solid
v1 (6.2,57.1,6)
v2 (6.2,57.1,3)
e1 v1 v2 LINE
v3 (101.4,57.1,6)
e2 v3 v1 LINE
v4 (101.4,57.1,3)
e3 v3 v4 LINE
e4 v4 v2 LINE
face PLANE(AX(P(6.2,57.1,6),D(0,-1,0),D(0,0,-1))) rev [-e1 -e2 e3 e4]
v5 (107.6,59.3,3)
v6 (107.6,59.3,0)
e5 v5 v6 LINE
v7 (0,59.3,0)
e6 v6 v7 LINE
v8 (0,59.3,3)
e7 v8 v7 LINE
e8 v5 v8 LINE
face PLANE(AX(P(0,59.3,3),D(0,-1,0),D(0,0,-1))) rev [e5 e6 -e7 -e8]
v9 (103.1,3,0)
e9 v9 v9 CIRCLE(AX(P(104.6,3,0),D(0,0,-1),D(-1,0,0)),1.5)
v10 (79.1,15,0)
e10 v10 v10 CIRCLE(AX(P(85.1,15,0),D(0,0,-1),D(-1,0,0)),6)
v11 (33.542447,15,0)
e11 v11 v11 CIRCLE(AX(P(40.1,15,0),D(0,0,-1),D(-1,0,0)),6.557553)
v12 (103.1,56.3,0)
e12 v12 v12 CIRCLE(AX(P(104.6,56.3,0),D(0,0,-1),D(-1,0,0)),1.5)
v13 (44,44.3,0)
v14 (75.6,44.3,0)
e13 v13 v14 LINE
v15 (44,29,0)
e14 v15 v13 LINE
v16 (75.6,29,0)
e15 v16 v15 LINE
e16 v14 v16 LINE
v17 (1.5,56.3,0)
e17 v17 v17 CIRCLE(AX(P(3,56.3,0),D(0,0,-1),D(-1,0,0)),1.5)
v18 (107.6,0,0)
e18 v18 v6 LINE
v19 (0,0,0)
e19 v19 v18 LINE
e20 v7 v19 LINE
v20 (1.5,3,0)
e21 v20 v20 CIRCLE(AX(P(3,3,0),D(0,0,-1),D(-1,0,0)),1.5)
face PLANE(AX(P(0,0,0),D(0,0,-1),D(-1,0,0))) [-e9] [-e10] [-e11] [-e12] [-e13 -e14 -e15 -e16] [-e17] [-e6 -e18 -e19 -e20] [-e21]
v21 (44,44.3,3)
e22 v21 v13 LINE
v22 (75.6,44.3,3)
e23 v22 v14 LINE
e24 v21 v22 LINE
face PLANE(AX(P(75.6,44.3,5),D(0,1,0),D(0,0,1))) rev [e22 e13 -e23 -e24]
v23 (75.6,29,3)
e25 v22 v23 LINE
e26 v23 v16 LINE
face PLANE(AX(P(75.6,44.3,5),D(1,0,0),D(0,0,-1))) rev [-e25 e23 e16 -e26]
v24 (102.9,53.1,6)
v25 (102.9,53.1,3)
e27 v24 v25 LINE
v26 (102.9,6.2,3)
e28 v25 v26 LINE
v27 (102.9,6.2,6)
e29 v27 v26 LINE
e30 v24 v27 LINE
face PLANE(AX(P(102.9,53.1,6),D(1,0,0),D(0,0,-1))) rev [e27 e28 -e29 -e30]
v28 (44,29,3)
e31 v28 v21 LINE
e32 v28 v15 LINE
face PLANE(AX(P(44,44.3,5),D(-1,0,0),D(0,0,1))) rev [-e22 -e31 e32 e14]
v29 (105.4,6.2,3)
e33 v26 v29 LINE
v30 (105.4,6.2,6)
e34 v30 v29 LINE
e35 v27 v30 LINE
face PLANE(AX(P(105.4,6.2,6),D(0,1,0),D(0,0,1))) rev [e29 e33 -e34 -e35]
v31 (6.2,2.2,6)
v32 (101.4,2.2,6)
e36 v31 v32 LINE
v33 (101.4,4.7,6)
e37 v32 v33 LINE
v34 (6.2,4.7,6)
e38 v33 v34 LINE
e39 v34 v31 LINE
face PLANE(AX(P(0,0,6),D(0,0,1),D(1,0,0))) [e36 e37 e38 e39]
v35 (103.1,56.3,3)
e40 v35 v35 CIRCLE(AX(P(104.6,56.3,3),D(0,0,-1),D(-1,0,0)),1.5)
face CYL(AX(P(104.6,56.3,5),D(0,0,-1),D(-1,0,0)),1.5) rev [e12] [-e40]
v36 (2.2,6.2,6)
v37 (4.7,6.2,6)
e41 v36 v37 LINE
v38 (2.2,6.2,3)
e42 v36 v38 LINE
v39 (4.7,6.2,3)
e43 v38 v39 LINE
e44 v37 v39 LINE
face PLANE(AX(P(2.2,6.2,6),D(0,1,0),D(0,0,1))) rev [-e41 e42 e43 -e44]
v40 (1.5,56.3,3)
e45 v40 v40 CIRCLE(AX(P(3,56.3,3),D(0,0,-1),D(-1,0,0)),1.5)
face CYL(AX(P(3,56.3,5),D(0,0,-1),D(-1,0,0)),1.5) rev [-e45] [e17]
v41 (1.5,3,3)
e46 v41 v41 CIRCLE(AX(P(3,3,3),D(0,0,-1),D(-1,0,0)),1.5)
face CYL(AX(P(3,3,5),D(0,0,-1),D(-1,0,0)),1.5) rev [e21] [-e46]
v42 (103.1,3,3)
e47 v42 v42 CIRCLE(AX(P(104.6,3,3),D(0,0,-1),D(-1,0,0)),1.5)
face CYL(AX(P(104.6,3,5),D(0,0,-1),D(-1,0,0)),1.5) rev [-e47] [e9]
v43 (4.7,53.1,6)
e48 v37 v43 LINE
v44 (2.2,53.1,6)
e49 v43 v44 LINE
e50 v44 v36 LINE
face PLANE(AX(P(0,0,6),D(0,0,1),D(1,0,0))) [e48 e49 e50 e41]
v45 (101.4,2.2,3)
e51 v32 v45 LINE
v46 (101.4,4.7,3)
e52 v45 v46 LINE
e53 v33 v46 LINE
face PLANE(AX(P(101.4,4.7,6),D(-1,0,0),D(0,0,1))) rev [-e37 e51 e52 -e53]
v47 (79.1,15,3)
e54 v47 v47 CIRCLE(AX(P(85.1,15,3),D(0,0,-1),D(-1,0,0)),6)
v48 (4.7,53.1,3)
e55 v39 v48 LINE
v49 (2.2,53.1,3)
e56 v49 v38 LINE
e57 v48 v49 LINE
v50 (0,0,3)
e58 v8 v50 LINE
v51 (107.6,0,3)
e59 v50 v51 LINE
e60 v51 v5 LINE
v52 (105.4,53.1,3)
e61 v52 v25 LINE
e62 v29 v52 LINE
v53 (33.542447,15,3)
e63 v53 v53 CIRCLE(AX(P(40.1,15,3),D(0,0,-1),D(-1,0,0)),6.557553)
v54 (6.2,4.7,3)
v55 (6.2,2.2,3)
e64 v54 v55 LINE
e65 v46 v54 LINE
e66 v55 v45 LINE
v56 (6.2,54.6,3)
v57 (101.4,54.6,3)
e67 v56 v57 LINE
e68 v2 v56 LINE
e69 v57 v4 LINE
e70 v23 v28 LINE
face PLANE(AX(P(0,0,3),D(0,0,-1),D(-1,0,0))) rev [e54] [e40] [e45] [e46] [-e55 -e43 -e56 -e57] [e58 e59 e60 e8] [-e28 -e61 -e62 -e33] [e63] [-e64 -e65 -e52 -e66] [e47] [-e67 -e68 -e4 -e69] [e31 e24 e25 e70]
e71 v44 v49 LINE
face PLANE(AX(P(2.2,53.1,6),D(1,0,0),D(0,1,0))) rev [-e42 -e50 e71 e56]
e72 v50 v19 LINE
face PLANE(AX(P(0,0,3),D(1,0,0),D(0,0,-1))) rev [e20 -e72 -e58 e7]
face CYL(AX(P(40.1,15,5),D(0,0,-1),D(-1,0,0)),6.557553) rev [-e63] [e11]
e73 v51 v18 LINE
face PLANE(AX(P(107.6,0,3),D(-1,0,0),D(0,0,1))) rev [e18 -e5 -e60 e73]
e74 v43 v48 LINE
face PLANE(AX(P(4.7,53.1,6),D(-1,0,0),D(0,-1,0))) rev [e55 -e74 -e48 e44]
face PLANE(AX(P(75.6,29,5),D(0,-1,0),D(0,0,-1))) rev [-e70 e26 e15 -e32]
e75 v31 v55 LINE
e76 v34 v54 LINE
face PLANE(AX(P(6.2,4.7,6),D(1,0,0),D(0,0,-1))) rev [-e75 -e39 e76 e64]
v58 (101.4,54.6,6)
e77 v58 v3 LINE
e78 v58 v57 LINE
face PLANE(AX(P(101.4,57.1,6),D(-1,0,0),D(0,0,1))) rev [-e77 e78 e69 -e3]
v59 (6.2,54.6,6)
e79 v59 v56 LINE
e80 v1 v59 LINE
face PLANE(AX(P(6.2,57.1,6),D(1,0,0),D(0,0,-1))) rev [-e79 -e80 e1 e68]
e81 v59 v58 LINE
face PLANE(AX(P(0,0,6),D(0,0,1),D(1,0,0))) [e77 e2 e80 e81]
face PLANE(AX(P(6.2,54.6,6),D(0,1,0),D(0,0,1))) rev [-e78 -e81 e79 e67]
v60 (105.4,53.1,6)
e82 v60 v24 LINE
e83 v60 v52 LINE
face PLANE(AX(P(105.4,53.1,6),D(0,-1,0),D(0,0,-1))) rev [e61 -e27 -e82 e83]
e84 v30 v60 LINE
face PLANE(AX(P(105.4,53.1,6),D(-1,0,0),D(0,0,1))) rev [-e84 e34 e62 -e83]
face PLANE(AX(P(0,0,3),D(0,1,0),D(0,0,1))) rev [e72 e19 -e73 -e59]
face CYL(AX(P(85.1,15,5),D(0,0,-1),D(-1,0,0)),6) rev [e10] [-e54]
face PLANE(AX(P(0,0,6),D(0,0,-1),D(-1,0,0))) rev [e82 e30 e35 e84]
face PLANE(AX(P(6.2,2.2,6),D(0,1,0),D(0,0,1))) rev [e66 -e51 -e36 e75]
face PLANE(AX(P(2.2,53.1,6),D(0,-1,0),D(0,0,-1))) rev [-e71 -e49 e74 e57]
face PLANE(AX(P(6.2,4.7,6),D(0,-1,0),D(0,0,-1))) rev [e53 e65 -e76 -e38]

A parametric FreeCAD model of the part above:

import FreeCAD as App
import Part
import Sketcher

V = App.Vector
Q = App.Units.Quantity


def add_polygon(sketch, points):
    """Adds a closed chain of lines whose ends are joined by coincident constraints."""
    first, n = sketch.GeometryCount, len(points)
    for a, b in zip(points, points[1:] + points[:1]):
        sketch.addGeometry(Part.LineSegment(App.Vector(*a, 0), App.Vector(*b, 0)), False)
    for i in range(n):
        sketch.addConstraint(Sketcher.Constraint("Coincident", first + i, 2, first + (i + 1) % n, 1))

doc = App.newDocument("Part")
body = doc.addObject("PartDesign::Body", "Body")

sketch1 = doc.addObject("Sketcher::SketchObject", "Sketch")
body.addObject(sketch1)
sketch1.AttachmentSupport = (doc.XY_Plane, [""])
sketch1.MapMode = "FlatFace"
add_polygon(sketch1, [(0, 59.3), (0, 0), (107.6, 0), (107.6, 59.3)])
sketch1.addConstraint(Sketcher.Constraint("Vertical", 0))
sketch1.addConstraint(Sketcher.Constraint("Horizontal", 1))
sketch1.addConstraint(Sketcher.Constraint("Vertical", 2))
sketch1.addConstraint(Sketcher.Constraint("Horizontal", 3))
sketch1.addConstraint(Sketcher.Constraint("Coincident", 0, 2, -1, 1))
sketch1.addConstraint(Sketcher.Constraint("DistanceX", 1, 1, 1, 2, Q("107.6 mm")))
sketch1.addConstraint(Sketcher.Constraint("DistanceY", 0, 2, 0, 1, Q("59.3 mm")))
pad1 = doc.addObject("PartDesign::Pad", "Pad")
body.addObject(pad1)
pad1.Profile = sketch1
pad1.Length = 3

sketch2 = doc.addObject("Sketcher::SketchObject", "Sketch001")
body.addObject(sketch2)
sketch2.AttachmentSupport = (doc.XY_Plane, [""])
sketch2.MapMode = "FlatFace"
sketch2.AttachmentOffset = App.Placement(V(0, 0, 3), App.Rotation())
add_polygon(sketch2, [(6.2, 57.1), (6.2, 54.6), (101.4, 54.6), (101.4, 57.1)])
add_polygon(sketch2, [(2.2, 53.1), (2.2, 6.2), (4.7, 6.2), (4.7, 53.1)])
add_polygon(sketch2, [(6.2, 4.7), (6.2, 2.2), (101.4, 2.2), (101.4, 4.7)])
add_polygon(sketch2, [(102.9, 53.1), (102.9, 6.2), (105.4, 6.2), (105.4, 53.1)])
sketch2.addConstraint(Sketcher.Constraint("Vertical", 0))
sketch2.addConstraint(Sketcher.Constraint("Horizontal", 1))
sketch2.addConstraint(Sketcher.Constraint("Vertical", 2))
sketch2.addConstraint(Sketcher.Constraint("Horizontal", 3))
sketch2.addConstraint(Sketcher.Constraint("Vertical", 4))
sketch2.addConstraint(Sketcher.Constraint("Horizontal", 5))
sketch2.addConstraint(Sketcher.Constraint("Vertical", 6))
sketch2.addConstraint(Sketcher.Constraint("Horizontal", 7))
sketch2.addConstraint(Sketcher.Constraint("Vertical", 8))
sketch2.addConstraint(Sketcher.Constraint("Horizontal", 9))
sketch2.addConstraint(Sketcher.Constraint("Vertical", 10))
sketch2.addConstraint(Sketcher.Constraint("Horizontal", 11))
sketch2.addConstraint(Sketcher.Constraint("Vertical", 12))
sketch2.addConstraint(Sketcher.Constraint("Horizontal", 13))
sketch2.addConstraint(Sketcher.Constraint("Vertical", 14))
sketch2.addConstraint(Sketcher.Constraint("Horizontal", 15))
sketch2.addConstraint(Sketcher.Constraint("Horizontal", 5, 2, 12, 2))
sketch2.addConstraint(Sketcher.Constraint("Horizontal", 7, 2, 14, 2))
sketch2.addConstraint(Sketcher.Constraint("Vertical", 3, 2, 8, 2))
sketch2.addConstraint(Sketcher.Constraint("Vertical", 2, 2, 9, 2))
sketch2.addConstraint(Sketcher.Constraint("Equal", 7, 13))
sketch2.addConstraint(Sketcher.Constraint("Equal", 15, 0))
sketch2.addConstraint(Sketcher.Constraint("Equal", 2, 8))
sketch2.addConstraint(Sketcher.Constraint("DistanceX", 1, 1, 1, 2, Q("95.2 mm")))
sketch2.addConstraint(Sketcher.Constraint("DistanceX", 5, 1, 5, 2, Q("2.5 mm")))
sketch2.addConstraint(Sketcher.Constraint("DistanceY", 4, 2, 4, 1, Q("46.9 mm")))
sketch2.addConstraint(Sketcher.Constraint("DistanceX", 4, 2, 0, 2, Q("4 mm")))
sketch2.addConstraint(Sketcher.Constraint("DistanceY", 6, 2, 3, 2, Q("4 mm")))
sketch2.addConstraint(Sketcher.Constraint("DistanceY", 8, 2, 5, 2, Q("4 mm")))
sketch2.addConstraint(Sketcher.Constraint("DistanceX", 10, 2, 13, 2, Q("4 mm")))
sketch2.addConstraint(Sketcher.Constraint("DistanceX", -1, 1, 0, 2, Q("6.2 mm")))
sketch2.addConstraint(Sketcher.Constraint("DistanceY", -1, 1, 0, 2, Q("54.6 mm")))
pad2 = doc.addObject("PartDesign::Pad", "Pad001")
body.addObject(pad2)
pad2.Profile = sketch2
pad2.Length = 3

sketch3 = doc.addObject("Sketcher::SketchObject", "Sketch002")
body.addObject(sketch3)
sketch3.AttachmentSupport = (doc.XY_Plane, [""])
sketch3.MapMode = "FlatFace"
sketch3.addGeometry(Part.Circle(V(104.6, 56.3, 0), V(0, 0, 1), 1.5), False)
sketch3.addGeometry(Part.Circle(V(3, 56.3, 0), V(0, 0, 1), 1.5), False)
sketch3.addGeometry(Part.Circle(V(3, 3, 0), V(0, 0, 1), 1.5), False)
sketch3.addGeometry(Part.Circle(V(104.6, 3, 0), V(0, 0, 1), 1.5), False)
sketch3.addGeometry(Part.Circle(V(85.1, 15, 0), V(0, 0, 1), 6), False)
sketch3.addGeometry(Part.Circle(V(40.1, 15, 0), V(0, 0, 1), 6.557553), False)
add_polygon(sketch3, [(75.6, 44.3), (75.6, 29), (44, 29), (44, 44.3)])
sketch3.addConstraint(Sketcher.Constraint("Vertical", 6))
sketch3.addConstraint(Sketcher.Constraint("Horizontal", 7))
sketch3.addConstraint(Sketcher.Constraint("Vertical", 8))
sketch3.addConstraint(Sketcher.Constraint("Horizontal", 9))
sketch3.addConstraint(Sketcher.Constraint("Equal", 0, 1))
sketch3.addConstraint(Sketcher.Constraint("Equal", 1, 2))
sketch3.addConstraint(Sketcher.Constraint("Equal", 2, 3))
sketch3.addConstraint(Sketcher.Constraint("Horizontal", 0, 3, 1, 3))
sketch3.addConstraint(Sketcher.Constraint("Horizontal", 2, 3, 3, 3))
sketch3.addConstraint(Sketcher.Constraint("Horizontal", 4, 3, 5, 3))
sketch3.addConstraint(Sketcher.Constraint("Vertical", 1, 3, 2, 3))
sketch3.addConstraint(Sketcher.Constraint("Vertical", 0, 3, 3, 3))
sketch3.addConstraint(Sketcher.Constraint("Diameter", 0, Q("3 mm")))
sketch3.addConstraint(Sketcher.Constraint("Diameter", 4, Q("12 mm")))
sketch3.addConstraint(Sketcher.Constraint("DistanceX", 7, 2, 7, 1, Q("31.6 mm")))
sketch3.addConstraint(Sketcher.Constraint("DistanceY", 6, 2, 6, 1, Q("15.3 mm")))
sketch3.addConstraint(Sketcher.Constraint("DistanceX", -1, 1, 1, 3, Q("3 mm")))
sketch3.addConstraint(Sketcher.Constraint("DistanceY", -1, 1, 2, 3, Q("3 mm")))
sketch3.addConstraint(Sketcher.Constraint("DistanceY", -1, 1, 4, 3, Q("15 mm")))
sketch3.addConstraint(Sketcher.Constraint("DistanceY", -1, 1, 6, 2, Q("29 mm")))
sketch3.addConstraint(Sketcher.Constraint("DistanceX", -1, 1, 7, 2, Q("44 mm")))
sketch3.addConstraint(Sketcher.Constraint("DistanceX", 5, 3, 4, 3, Q("45 mm")))
sketch3.addConstraint(Sketcher.Constraint("DistanceX", 6, 2, 3, 3, Q("29 mm")))
sketch3.addConstraint(Sketcher.Constraint("DistanceY", 8, 2, 1, 3, Q("12 mm")))
sketch3.addConstraint(Sketcher.Constraint("DistanceX", -1, 1, 4, 3, Q("85.1 mm")))
sketch3.addConstraint(Sketcher.Constraint("Diameter", 5, Q("13.115105 mm")))
pocket1 = doc.addObject("PartDesign::Pocket", "Pocket")
body.addObject(pocket1)
pocket1.Profile = sketch3
pocket1.Length = 5
pocket1.Reversed = True

doc.recompute()
